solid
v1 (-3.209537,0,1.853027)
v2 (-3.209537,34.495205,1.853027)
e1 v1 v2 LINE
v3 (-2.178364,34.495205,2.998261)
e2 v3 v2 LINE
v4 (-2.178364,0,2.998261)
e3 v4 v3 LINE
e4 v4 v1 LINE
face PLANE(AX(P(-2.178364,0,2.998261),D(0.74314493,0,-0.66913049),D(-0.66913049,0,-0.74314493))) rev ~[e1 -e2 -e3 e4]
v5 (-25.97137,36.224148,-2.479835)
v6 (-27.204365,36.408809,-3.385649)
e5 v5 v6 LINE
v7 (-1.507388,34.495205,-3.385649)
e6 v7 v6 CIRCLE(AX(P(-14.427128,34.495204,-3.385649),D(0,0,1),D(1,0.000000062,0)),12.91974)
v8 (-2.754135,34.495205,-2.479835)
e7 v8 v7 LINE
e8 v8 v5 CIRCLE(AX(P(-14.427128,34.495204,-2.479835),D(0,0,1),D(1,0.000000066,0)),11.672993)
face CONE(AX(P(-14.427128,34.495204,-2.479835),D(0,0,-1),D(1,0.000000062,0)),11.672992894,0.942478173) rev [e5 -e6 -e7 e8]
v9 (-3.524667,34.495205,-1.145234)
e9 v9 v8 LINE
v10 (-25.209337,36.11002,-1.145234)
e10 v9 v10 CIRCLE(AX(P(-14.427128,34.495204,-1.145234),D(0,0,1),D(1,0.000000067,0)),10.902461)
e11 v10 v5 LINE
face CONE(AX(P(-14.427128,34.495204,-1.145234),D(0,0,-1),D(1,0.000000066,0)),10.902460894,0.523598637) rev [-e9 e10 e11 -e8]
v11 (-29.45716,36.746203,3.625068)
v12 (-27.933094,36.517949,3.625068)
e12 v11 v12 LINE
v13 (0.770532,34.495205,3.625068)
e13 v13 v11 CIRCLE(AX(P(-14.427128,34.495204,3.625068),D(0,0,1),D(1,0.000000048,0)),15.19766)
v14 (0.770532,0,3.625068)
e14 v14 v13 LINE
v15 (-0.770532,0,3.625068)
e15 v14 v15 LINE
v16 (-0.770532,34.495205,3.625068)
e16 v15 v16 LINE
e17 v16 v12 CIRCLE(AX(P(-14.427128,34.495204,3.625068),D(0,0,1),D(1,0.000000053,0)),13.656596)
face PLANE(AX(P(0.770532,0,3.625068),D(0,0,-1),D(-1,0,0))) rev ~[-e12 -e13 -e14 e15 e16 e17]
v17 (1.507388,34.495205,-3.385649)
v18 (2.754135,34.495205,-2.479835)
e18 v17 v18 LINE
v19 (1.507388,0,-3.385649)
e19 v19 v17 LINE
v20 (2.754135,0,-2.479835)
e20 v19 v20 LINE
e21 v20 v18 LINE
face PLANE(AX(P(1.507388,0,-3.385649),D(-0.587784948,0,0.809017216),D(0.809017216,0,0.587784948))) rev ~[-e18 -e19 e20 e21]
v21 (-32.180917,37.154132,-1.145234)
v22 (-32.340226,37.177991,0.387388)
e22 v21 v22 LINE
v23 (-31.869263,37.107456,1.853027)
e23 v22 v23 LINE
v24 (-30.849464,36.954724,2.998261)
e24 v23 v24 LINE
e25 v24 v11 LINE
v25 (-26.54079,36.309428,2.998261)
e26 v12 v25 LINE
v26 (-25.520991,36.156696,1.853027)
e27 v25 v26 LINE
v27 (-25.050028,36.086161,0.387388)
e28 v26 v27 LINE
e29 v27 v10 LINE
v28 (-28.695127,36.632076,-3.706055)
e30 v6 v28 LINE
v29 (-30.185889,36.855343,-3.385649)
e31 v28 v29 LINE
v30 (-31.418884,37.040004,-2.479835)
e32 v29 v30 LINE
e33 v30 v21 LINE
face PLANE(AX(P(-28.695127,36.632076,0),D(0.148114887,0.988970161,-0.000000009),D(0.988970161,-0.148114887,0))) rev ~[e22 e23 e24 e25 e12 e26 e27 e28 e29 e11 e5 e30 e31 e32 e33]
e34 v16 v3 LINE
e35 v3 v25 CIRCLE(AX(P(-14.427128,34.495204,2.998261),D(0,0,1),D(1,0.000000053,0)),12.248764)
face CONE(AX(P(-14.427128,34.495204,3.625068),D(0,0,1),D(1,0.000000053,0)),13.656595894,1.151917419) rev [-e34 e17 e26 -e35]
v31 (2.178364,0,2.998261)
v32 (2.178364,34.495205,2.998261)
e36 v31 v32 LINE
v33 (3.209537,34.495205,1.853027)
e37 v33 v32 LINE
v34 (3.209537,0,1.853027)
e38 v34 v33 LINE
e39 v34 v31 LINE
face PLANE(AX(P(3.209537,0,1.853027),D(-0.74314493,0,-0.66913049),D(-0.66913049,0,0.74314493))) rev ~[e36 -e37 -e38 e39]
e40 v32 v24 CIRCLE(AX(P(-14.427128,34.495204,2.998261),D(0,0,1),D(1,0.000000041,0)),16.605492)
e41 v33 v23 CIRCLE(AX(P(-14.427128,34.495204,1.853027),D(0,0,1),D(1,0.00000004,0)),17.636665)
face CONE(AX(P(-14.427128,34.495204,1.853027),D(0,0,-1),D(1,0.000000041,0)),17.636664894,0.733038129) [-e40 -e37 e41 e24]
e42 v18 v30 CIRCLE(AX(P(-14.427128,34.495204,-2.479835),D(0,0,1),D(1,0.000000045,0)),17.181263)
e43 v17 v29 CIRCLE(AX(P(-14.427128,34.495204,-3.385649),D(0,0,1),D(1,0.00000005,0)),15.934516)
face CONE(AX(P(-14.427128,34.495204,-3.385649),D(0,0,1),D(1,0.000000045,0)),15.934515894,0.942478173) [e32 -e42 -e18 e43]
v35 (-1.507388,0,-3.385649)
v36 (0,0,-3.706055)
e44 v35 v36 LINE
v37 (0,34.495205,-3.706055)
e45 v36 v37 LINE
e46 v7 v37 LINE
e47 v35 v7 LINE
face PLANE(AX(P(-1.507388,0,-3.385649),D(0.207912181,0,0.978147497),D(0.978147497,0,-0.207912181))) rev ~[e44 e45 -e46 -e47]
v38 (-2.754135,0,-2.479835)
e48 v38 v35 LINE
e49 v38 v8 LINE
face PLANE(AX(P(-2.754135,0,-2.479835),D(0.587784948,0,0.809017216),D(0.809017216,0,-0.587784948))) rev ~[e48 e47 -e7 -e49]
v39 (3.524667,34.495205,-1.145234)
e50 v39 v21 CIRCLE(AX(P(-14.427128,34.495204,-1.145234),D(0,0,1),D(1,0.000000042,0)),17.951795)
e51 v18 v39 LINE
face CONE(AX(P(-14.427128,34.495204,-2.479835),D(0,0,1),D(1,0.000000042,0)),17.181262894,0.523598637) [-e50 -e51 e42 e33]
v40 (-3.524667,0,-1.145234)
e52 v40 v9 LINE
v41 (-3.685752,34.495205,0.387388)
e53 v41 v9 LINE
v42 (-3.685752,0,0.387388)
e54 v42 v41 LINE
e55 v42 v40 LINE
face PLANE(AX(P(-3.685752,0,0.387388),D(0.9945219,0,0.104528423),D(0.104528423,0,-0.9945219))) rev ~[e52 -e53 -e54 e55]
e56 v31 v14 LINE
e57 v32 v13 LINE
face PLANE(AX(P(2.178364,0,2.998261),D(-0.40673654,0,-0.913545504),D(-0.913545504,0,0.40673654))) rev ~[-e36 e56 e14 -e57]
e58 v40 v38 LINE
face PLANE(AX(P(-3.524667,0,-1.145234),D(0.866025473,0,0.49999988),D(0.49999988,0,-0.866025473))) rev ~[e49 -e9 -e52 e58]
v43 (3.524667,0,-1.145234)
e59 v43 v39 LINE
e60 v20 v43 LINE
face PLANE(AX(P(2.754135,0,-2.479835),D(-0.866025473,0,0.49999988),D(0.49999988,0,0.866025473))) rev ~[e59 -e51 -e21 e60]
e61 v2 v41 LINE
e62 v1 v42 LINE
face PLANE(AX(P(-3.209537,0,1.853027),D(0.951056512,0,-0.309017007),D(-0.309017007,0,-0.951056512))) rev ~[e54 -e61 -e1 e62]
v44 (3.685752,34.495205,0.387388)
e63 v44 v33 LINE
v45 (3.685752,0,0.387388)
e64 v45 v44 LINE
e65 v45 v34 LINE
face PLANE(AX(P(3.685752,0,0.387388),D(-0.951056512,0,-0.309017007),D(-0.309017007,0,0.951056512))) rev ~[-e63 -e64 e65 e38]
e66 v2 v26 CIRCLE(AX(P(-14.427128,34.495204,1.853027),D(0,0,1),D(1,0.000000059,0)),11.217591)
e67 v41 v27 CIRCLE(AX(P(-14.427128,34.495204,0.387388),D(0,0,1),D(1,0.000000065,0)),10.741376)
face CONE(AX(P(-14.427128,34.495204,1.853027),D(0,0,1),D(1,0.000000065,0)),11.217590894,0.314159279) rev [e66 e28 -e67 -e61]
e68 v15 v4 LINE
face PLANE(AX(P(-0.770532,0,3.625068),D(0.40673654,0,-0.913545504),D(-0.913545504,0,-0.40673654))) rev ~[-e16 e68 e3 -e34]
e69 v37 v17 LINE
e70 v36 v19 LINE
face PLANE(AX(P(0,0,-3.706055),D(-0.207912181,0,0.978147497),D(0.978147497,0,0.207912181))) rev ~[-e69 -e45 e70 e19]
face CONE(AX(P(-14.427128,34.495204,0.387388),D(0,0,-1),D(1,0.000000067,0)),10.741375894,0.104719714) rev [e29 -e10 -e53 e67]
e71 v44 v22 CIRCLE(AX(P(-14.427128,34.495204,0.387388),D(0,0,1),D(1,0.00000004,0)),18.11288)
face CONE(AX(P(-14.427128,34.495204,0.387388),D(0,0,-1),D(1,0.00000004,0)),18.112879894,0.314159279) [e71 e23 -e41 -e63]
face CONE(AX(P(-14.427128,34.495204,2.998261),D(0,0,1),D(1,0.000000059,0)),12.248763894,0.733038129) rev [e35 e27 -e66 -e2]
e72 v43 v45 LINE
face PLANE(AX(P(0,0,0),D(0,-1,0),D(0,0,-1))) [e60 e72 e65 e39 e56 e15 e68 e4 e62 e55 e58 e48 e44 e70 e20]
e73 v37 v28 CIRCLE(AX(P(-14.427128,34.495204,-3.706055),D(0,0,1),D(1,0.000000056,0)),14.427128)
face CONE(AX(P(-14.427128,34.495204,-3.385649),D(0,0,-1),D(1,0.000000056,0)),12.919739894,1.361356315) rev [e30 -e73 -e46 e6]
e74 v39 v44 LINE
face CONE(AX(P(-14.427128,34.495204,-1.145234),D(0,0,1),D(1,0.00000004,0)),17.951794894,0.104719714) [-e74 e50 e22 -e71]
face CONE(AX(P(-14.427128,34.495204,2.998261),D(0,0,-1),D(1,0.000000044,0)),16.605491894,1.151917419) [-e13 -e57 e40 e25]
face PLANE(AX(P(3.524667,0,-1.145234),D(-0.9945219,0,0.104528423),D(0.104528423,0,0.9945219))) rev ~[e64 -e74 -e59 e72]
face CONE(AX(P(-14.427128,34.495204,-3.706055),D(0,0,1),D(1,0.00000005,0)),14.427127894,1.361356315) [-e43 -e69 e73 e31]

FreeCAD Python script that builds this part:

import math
import FreeCAD as App
import Part
import Sketcher
Q = App.Units.Quantity


def add_polygon(sketch, points):
    """Adds a closed chain of lines whose ends are joined by coincident constraints."""
    first, n = sketch.GeometryCount, len(points)
    for a, b in zip(points, points[1:] + points[:1]):
        sketch.addGeometry(Part.LineSegment(App.Vector(*a, 0), App.Vector(*b, 0)), False)
    for i in range(n):
        sketch.addConstraint(Sketcher.Constraint("Coincident", first + i, 2, first + (i + 1) % n, 1))

doc = App.newDocument("Part")
body = doc.addObject("PartDesign::Body", "Body")

# Sketch on XZ plane
sketch1 = body.newObject("Sketcher::SketchObject", "Sketch")
sketch1.AttachmentSupport = (doc.getObject("XZ_Plane"), [""])
sketch1.MapMode = "FlatFace"
add_polygon(sketch1, [(0.8, 3.6), (-0.8, 3.6), (-2.2, 3), (-3.2, 1.9), (-3.7, 0.4), (-3.5, -1.1), (-2.8, -2.5), (-1.5, -3.4), (0, -3.7), (1.5, -3.4), (2.8, -2.5), (3.5, -1.1), (3.7, 0.4), (3.2, 1.9), (2.2, 3)])  # lines 0-14
sketch1.addConstraint([
    Sketcher.Constraint("Horizontal", 0),
    Sketcher.Constraint("Symmetric", 6, 2, 8, 2, -2),
    Sketcher.Constraint("Symmetric", 5, 2, 9, 2, -2),
    Sketcher.Constraint("Symmetric", 4, 2, 10, 2, -2),
    Sketcher.Constraint("Symmetric", 3, 2, 11, 2, -2),
    Sketcher.Constraint("Symmetric", 2, 2, 12, 2, -2),
    Sketcher.Constraint("Symmetric", 1, 2, 13, 2, -2),
    Sketcher.Constraint("PointOnObject", 7, 2, -2),
    Sketcher.Constraint("Equal", 1, 2),
    Sketcher.Constraint("Equal", 2, 3),
    Sketcher.Constraint("Equal", 3, 4),
    Sketcher.Constraint("Equal", 4, 5),
    Sketcher.Constraint("Equal", 5, 6),
    Sketcher.Constraint("Equal", 6, 7),
    Sketcher.Constraint("Equal", 13, 14),
    Sketcher.Constraint("Angle", 1, Q("-156.000006 deg")),
    Sketcher.Constraint("Angle", 2, Q("-131.999991 deg")),
    Sketcher.Constraint("Angle", 3, Q("-108.000001 deg")),
    Sketcher.Constraint("Angle", 4, Q("-84.000002 deg")),
    Sketcher.Constraint("Angle", 5, Q("-60.000008 deg")),
    Sketcher.Constraint("DistanceY", 5, 2, 4, 2, 1.334601),
    Sketcher.Constraint("DistanceX", 0, 2, 0, 1, 1.541064),
    Sketcher.Constraint("DistanceY", -1, 1, 0, 2, 3.625068),
    Sketcher.Constraint("DistanceY", 6, 2, -1, 1, 3.385649),
])

# Sketch on XY plane
sketch2 = body.newObject("Sketcher::SketchObject", "Sketch001")
sketch2.AttachmentSupport = (doc.getObject("XY_Plane"), [""])
sketch2.MapMode = "FlatFace"
sketch2.addGeometry([
    Part.LineSegment(App.Vector(0, 0, 0), App.Vector(0, 34, 0)),
    Part.ArcOfCircle(Part.Circle(App.Vector(-14, 34, 0), App.Vector(0, 0, 1), 14), math.radians(0), math.radians(171)),
], False)
sketch2.addConstraint([
    Sketcher.Constraint("Tangent", 0, 2, 1, 1),
    Sketcher.Constraint("Vertical", 0),
    Sketcher.Constraint("Coincident", 0, 1, -1, 1),
    Sketcher.Constraint("Radius", 1, 14.427128),
    Sketcher.Constraint("DistanceX", 1, 2, 1, 3, 14.267999),
    Sketcher.Constraint("DistanceY", 0, 1, 0, 2, 34.495205),
])
doc.recompute()

additivepipe = body.newObject("PartDesign::AdditivePipe", "AdditivePipe")
additivepipe.Profile = sketch1
additivepipe.Spine = (sketch2, ["Edge1", "Edge2"])

doc.recompute()
